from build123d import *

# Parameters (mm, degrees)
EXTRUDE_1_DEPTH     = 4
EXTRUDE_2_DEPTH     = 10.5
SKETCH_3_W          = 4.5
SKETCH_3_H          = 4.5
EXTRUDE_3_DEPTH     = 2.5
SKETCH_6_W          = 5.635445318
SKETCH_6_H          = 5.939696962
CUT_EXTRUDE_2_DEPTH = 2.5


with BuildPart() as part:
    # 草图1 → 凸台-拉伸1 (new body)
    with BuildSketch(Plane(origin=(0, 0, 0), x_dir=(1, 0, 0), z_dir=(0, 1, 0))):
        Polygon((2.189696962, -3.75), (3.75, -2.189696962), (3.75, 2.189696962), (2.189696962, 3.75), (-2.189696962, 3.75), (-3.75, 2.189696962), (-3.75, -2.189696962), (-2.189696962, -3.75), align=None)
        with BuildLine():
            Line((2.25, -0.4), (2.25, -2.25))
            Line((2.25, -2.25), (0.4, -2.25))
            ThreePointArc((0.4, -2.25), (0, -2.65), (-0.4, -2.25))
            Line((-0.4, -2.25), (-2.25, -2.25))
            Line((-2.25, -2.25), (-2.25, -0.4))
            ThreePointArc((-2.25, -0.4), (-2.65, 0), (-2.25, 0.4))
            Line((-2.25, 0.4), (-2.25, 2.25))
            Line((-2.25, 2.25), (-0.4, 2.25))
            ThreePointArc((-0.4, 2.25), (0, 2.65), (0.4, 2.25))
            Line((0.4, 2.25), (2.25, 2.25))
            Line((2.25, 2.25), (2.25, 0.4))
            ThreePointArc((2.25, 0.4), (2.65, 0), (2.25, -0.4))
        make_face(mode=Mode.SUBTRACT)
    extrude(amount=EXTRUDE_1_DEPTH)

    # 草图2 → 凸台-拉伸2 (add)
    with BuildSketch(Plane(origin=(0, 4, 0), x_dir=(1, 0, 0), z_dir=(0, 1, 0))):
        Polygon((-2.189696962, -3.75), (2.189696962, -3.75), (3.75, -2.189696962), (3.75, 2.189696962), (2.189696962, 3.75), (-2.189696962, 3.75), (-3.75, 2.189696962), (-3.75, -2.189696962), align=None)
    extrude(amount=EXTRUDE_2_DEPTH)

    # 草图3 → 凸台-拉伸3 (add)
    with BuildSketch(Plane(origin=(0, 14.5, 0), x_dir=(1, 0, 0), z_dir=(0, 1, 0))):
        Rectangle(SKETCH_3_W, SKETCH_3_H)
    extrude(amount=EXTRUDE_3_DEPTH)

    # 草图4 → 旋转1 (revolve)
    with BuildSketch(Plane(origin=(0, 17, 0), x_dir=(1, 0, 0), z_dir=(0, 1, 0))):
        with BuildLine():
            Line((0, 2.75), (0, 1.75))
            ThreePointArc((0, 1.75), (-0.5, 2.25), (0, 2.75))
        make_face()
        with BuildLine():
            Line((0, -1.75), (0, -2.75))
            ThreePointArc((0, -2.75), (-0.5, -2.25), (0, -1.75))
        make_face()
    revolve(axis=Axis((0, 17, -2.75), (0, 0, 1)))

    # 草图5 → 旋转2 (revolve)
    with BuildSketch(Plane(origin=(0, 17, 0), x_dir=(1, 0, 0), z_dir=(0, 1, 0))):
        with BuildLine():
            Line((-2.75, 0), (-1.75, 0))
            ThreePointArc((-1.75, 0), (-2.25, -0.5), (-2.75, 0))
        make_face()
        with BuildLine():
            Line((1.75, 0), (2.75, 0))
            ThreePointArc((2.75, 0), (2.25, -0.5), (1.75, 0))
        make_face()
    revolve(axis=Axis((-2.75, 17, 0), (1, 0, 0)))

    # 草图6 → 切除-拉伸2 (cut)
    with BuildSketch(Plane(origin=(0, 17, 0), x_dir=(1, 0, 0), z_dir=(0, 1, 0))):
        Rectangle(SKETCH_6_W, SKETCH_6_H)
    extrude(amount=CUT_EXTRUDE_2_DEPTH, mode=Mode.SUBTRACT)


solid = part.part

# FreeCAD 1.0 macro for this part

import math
import FreeCAD as App
import Part
import Sketcher
from FreeCAD import Vector


def add_polygon(sketch, points):
    """Adds a closed chain of lines whose ends are joined by coincident constraints."""
    first, n = sketch.GeometryCount, len(points)
    for a, b in zip(points, points[1:] + points[:1]):
        sketch.addGeometry(Part.LineSegment(App.Vector(*a, 0), App.Vector(*b, 0)), False)
    for i in range(n):
        sketch.addConstraint(Sketcher.Constraint("Coincident", first + i, 2, first + (i + 1) % n, 1))

doc = App.newDocument("Part")
body = doc.addObject("PartDesign::Body", "Body")

sketch1 = doc.addObject("Sketcher::SketchObject", "Sketch")
body.addObject(sketch1)
sketch1.AttachmentSupport = (doc.XZ_Plane, [""])
sketch1.MapMode = "FlatFace"
add_polygon(sketch1, [(2.19, 3.75), (3.75, 2.19), (3.75, -2.19), (2.19, -3.75), (-2.19, -3.75), (-3.75, -2.19), (-3.75, 2.19), (-2.19, 3.75)])
sketch1.addGeometry(Part.ArcOfCircle(Part.Circle(Vector(2.25, 0, 0), Vector(0, 0, 1), 0.4), math.radians(-90), math.radians(90)), False)
sketch1.addGeometry(Part.LineSegment(Vector(2.25, 0.4, 0), Vector(2.25, 2.25, 0)), False)
sketch1.addGeometry(Part.LineSegment(Vector(2.25, 2.25, 0), Vector(0.4, 2.25, 0)), False)
sketch1.addGeometry(Part.ArcOfCircle(Part.Circle(Vector(0, 2.25, 0), Vector(0, 0, 1), 0.4), math.radians(0), math.radians(180)), False)
sketch1.addGeometry(Part.LineSegment(Vector(-0.4, 2.25, 0), Vector(-2.25, 2.25, 0)), False)
sketch1.addGeometry(Part.LineSegment(Vector(-2.25, 2.25, 0), Vector(-2.25, 0.4, 0)), False)
sketch1.addGeometry(Part.ArcOfCircle(Part.Circle(Vector(-2.25, 0, 0), Vector(0, 0, 1), 0.4), math.radians(90), math.radians(270)), False)
sketch1.addGeometry(Part.LineSegment(Vector(-2.25, -0.4, 0), Vector(-2.25, -2.25, 0)), False)
sketch1.addGeometry(Part.LineSegment(Vector(-2.25, -2.25, 0), Vector(-0.4, -2.25, 0)), False)
sketch1.addGeometry(Part.ArcOfCircle(Part.Circle(Vector(0, -2.25, 0), Vector(0, 0, 1), 0.4), math.radians(180), math.radians(360)), False)
sketch1.addGeometry(Part.LineSegment(Vector(0.4, -2.25, 0), Vector(2.25, -2.25, 0)), False)
sketch1.addGeometry(Part.LineSegment(Vector(2.25, -2.25, 0), Vector(2.25, -0.4, 0)), False)
sketch1.addConstraint([
    Sketcher.Constraint("Coincident", 8, 2, 9, 1),
    Sketcher.Constraint("Coincident", 9, 2, 10, 1),
    Sketcher.Constraint("Coincident", 10, 2, 11, 1),
    Sketcher.Constraint("Coincident", 11, 2, 12, 1),
    Sketcher.Constraint("Coincident", 12, 2, 13, 1),
    Sketcher.Constraint("Coincident", 13, 2, 14, 1),
    Sketcher.Constraint("Coincident", 14, 2, 15, 1),
    Sketcher.Constraint("Coincident", 15, 2, 16, 1),
    Sketcher.Constraint("Coincident", 16, 2, 17, 1),
    Sketcher.Constraint("Coincident", 17, 2, 18, 1),
    Sketcher.Constraint("Coincident", 18, 2, 19, 1),
    Sketcher.Constraint("Coincident", 19, 2, 8, 1),
    Sketcher.Constraint("Vertical", 1),
    Sketcher.Constraint("Horizontal", 3),
    Sketcher.Constraint("Vertical", 5),
    Sketcher.Constraint("Horizontal", 7),
    Sketcher.Constraint("Vertical", 9),
    Sketcher.Constraint("Horizontal", 10),
    Sketcher.Constraint("Horizontal", 12),
    Sketcher.Constraint("Vertical", 13),
    Sketcher.Constraint("Vertical", 15),
    Sketcher.Constraint("Horizontal", 16),
    Sketcher.Constraint("Horizontal", 18),
    Sketcher.Constraint("Vertical", 19),
    Sketcher.Constraint("Equal", 8, 11),
    Sketcher.Constraint("Equal", 11, 14),
    Sketcher.Constraint("Equal", 14, 17),
    Sketcher.Constraint("Symmetric", 8, 3, 14, 3, -1, 1),
    Sketcher.Constraint("Symmetric", 11, 3, 17, 3, -1, 1),
    Sketcher.Constraint("Symmetric", 0, 2, 4, 2, -1, 1),
    Sketcher.Constraint("Symmetric", 2, 2, 6, 2, -1, 1),
    Sketcher.Constraint("Symmetric", 9, 2, 15, 2, -1, 1),
    Sketcher.Constraint("Symmetric", 12, 2, 18, 2, -1, 1),
    Sketcher.Constraint("Symmetric", 10, 2, 11, 2, -2),
    Sketcher.Constraint("Symmetric", 8, 2, 13, 2, -2),
    Sketcher.Constraint("Perpendicular", 0, 2),
    Sketcher.Constraint("Perpendicular", 2, 4),
    Sketcher.Constraint("Perpendicular", 4, 6),
    Sketcher.Constraint("Horizontal", 1, 2, 4, 2),
    Sketcher.Constraint("Horizontal", 11, 3, 9, 2),
    Sketcher.Constraint("Vertical", 3, 2, 6, 2),
    Sketcher.Constraint("Vertical", 14, 3, 12, 2),
    Sketcher.Constraint("Equal", 7, 1),
    Sketcher.Constraint("Equal", 18, 9),
    Sketcher.Constraint("Radius", 8, 0.4),
    Sketcher.Constraint("DistanceX", 14, 3, 0, 2, 6.0),
    Sketcher.Constraint("DistanceX", 10, 2, 10, 1, 1.85),
    Sketcher.Constraint("Distance", 0, 2.206602),
])
pad1 = doc.addObject("PartDesign::Pad", "Pad")
body.addObject(pad1)
pad1.Profile = sketch1
pad1.Length = 4
pad1.Reversed = True

sketch2 = doc.addObject("Sketcher::SketchObject", "Sketch001")
body.addObject(sketch2)
sketch2.AttachmentSupport = (doc.XZ_Plane, [""])
sketch2.MapMode = "FlatFace"
sketch2.AttachmentOffset = App.Placement(Vector(0, 0, -4), App.Rotation())
add_polygon(sketch2, [(-2.2, 3.8), (2.2, 3.8), (3.8, 2.2), (3.8, -2.2), (2.2, -3.8), (-2.2, -3.8), (-3.8, -2.2), (-3.8, 2.2)])
sketch2.addConstraint([
    Sketcher.Constraint("Horizontal", 0),
    Sketcher.Constraint("Vertical", 2),
    Sketcher.Constraint("Horizontal", 4),
    Sketcher.Constraint("Vertical", 6),
    Sketcher.Constraint("Symmetric", 0, 2, 4, 2, -1, 1),
    Sketcher.Constraint("Symmetric", 1, 2, 5, 2, -1, 1),
    Sketcher.Constraint("Perpendicular", 1, 3),
    Sketcher.Constraint("Perpendicular", 5, 7),
    Sketcher.Constraint("Horizontal", 2, 2, 5, 2),
    Sketcher.Constraint("Horizontal", 1, 2, 6, 2),
    Sketcher.Constraint("Vertical", 0, 2, 3, 2),
    Sketcher.Constraint("Equal", 4, 2),
    Sketcher.Constraint("DistanceY", 3, 2, 0, 2, 7.5),
    Sketcher.Constraint("Distance", 1, 2.206602),
])
pad2 = doc.addObject("PartDesign::Pad", "Pad001")
body.addObject(pad2)
pad2.Profile = sketch2
pad2.Length = 10.5
pad2.Reversed = True

sketch3 = doc.addObject("Sketcher::SketchObject", "Sketch002")
body.addObject(sketch3)
sketch3.AttachmentSupport = (doc.XZ_Plane, [""])
sketch3.MapMode = "FlatFace"
sketch3.AttachmentOffset = App.Placement(Vector(0, 0, -14.5), App.Rotation())
add_polygon(sketch3, [(-2.2, -2.2), (-2.2, 2.2), (2.2, 2.2), (2.2, -2.2)])
sketch3.addConstraint([
    Sketcher.Constraint("Vertical", 0),
    Sketcher.Constraint("Horizontal", 1),
    Sketcher.Constraint("Vertical", 2),
    Sketcher.Constraint("Horizontal", 3),
    Sketcher.Constraint("Symmetric", 0, 2, 2, 2, -1, 1),
    Sketcher.Constraint("Equal", 3, 0),
    Sketcher.Constraint("DistanceX", 1, 1, 1, 2, 4.5),
])
pad3 = doc.addObject("PartDesign::Pad", "Pad002")
body.addObject(pad3)
pad3.Profile = sketch3
pad3.Length = 2.5
pad3.Reversed = True

sketch4 = doc.addObject("Sketcher::SketchObject", "Sketch003")
body.addObject(sketch4)
sketch4.AttachmentSupport = (doc.XZ_Plane, [""])
sketch4.MapMode = "FlatFace"
sketch4.AttachmentOffset = App.Placement(Vector(0, 0, -17), App.Rotation())
sketch4.addGeometry([
    Part.LineSegment(Vector(0, -1.8, 0), Vector(0, -2.8, 0)),
    Part.ArcOfCircle(Part.Circle(Vector(0, -2.2, 0), Vector(0, 0, 1), 0.5), math.radians(90), math.radians(270)),
    Part.LineSegment(Vector(0, 2.8, 0), Vector(0, 1.8, 0)),
    Part.ArcOfCircle(Part.Circle(Vector(0, 2.2, 0), Vector(0, 0, 1), 0.5), math.radians(90), math.radians(270)),
], False)
sketch4.addConstraint([
    Sketcher.Constraint("Coincident", 0, 1, 1, 1),
    Sketcher.Constraint("Coincident", 1, 2, 0, 2),
    Sketcher.Constraint("Coincident", 2, 1, 3, 1),
    Sketcher.Constraint("Coincident", 3, 2, 2, 2),
    Sketcher.Constraint("Vertical", 0),
    Sketcher.Constraint("Vertical", 2),
    Sketcher.Constraint("Equal", 1, 3),
    Sketcher.Constraint("Symmetric", 1, 3, 3, 3, -1, 1),
    Sketcher.Constraint("PointOnObject", 1, 3, -2),
    Sketcher.Constraint("PointOnObject", 0, 1, -2),
    Sketcher.Constraint("PointOnObject", 2, 1, -2),
    Sketcher.Constraint("Radius", 1, 0.5),
    Sketcher.Constraint("DistanceY", 0, 1, 3, 3, 4.0),
])
revolution = doc.addObject("PartDesign::Revolution", "Revolution")
body.addObject(revolution)
revolution.Profile = sketch4
revolution.ReferenceAxis = (sketch4, ["V_Axis"])
revolution.Angle = 360

sketch5 = doc.addObject("Sketcher::SketchObject", "Sketch004")
body.addObject(sketch5)
sketch5.AttachmentSupport = (doc.XZ_Plane, [""])
sketch5.MapMode = "FlatFace"
sketch5.AttachmentOffset = App.Placement(Vector(0, 0, -17), App.Rotation())
sketch5.addGeometry([
    Part.LineSegment(Vector(-1.8, 0, 0), Vector(-2.8, 0, 0)),
    Part.ArcOfCircle(Part.Circle(Vector(-2.2, 0, 0), Vector(0, 0, 1), 0.5), math.radians(0), math.radians(180)),
    Part.LineSegment(Vector(2.8, 0, 0), Vector(1.8, 0, 0)),
    Part.ArcOfCircle(Part.Circle(Vector(2.2, 0, 0), Vector(0, 0, 1), 0.5), math.radians(0), math.radians(180)),
], False)
sketch5.addConstraint([
    Sketcher.Constraint("Coincident", 0, 1, 1, 1),
    Sketcher.Constraint("Coincident", 1, 2, 0, 2),
    Sketcher.Constraint("Coincident", 2, 1, 3, 1),
    Sketcher.Constraint("Coincident", 3, 2, 2, 2),
    Sketcher.Constraint("Horizontal", 0),
    Sketcher.Constraint("Horizontal", 2),
    Sketcher.Constraint("Equal", 1, 3),
    Sketcher.Constraint("Symmetric", 1, 3, 3, 3, -1, 1),
    Sketcher.Constraint("PointOnObject", 1, 3, -1),
    Sketcher.Constraint("PointOnObject", 0, 1, -1),
    Sketcher.Constraint("PointOnObject", 2, 1, -1),
    Sketcher.Constraint("Radius", 1, 0.5),
    Sketcher.Constraint("DistanceX", 0, 1, 3, 3, 4.0),
])
revolution2 = doc.addObject("PartDesign::Revolution", "Revolution001")
body.addObject(revolution2)
revolution2.Profile = sketch5
revolution2.ReferenceAxis = (sketch5, ["H_Axis"])
revolution2.Angle = 360

sketch6 = doc.addObject("Sketcher::SketchObject", "Sketch005")
body.addObject(sketch6)
sketch6.AttachmentSupport = (doc.XZ_Plane, [""])
sketch6.MapMode = "FlatFace"
sketch6.AttachmentOffset = App.Placement(Vector(0, 0, -17), App.Rotation())
add_polygon(sketch6, [(-3, -3), (-3, 3), (3, 3), (3, -3)])
sketch6.addConstraint([
    Sketcher.Constraint("Vertical", 0),
    Sketcher.Constraint("Horizontal", 1),
    Sketcher.Constraint("Vertical", 2),
    Sketcher.Constraint("Horizontal", 3),
    Sketcher.Constraint("Symmetric", 0, 2, 2, 2, -1, 1),
    Sketcher.Constraint("DistanceX", 1, 1, 1, 2, 5.635445),
    Sketcher.Constraint("DistanceY", 0, 1, 0, 2, 5.939697),
])
pocket1 = doc.addObject("PartDesign::Pocket", "Pocket")
body.addObject(pocket1)
pocket1.Profile = sketch6
pocket1.Length = 2.5

doc.recompute()
